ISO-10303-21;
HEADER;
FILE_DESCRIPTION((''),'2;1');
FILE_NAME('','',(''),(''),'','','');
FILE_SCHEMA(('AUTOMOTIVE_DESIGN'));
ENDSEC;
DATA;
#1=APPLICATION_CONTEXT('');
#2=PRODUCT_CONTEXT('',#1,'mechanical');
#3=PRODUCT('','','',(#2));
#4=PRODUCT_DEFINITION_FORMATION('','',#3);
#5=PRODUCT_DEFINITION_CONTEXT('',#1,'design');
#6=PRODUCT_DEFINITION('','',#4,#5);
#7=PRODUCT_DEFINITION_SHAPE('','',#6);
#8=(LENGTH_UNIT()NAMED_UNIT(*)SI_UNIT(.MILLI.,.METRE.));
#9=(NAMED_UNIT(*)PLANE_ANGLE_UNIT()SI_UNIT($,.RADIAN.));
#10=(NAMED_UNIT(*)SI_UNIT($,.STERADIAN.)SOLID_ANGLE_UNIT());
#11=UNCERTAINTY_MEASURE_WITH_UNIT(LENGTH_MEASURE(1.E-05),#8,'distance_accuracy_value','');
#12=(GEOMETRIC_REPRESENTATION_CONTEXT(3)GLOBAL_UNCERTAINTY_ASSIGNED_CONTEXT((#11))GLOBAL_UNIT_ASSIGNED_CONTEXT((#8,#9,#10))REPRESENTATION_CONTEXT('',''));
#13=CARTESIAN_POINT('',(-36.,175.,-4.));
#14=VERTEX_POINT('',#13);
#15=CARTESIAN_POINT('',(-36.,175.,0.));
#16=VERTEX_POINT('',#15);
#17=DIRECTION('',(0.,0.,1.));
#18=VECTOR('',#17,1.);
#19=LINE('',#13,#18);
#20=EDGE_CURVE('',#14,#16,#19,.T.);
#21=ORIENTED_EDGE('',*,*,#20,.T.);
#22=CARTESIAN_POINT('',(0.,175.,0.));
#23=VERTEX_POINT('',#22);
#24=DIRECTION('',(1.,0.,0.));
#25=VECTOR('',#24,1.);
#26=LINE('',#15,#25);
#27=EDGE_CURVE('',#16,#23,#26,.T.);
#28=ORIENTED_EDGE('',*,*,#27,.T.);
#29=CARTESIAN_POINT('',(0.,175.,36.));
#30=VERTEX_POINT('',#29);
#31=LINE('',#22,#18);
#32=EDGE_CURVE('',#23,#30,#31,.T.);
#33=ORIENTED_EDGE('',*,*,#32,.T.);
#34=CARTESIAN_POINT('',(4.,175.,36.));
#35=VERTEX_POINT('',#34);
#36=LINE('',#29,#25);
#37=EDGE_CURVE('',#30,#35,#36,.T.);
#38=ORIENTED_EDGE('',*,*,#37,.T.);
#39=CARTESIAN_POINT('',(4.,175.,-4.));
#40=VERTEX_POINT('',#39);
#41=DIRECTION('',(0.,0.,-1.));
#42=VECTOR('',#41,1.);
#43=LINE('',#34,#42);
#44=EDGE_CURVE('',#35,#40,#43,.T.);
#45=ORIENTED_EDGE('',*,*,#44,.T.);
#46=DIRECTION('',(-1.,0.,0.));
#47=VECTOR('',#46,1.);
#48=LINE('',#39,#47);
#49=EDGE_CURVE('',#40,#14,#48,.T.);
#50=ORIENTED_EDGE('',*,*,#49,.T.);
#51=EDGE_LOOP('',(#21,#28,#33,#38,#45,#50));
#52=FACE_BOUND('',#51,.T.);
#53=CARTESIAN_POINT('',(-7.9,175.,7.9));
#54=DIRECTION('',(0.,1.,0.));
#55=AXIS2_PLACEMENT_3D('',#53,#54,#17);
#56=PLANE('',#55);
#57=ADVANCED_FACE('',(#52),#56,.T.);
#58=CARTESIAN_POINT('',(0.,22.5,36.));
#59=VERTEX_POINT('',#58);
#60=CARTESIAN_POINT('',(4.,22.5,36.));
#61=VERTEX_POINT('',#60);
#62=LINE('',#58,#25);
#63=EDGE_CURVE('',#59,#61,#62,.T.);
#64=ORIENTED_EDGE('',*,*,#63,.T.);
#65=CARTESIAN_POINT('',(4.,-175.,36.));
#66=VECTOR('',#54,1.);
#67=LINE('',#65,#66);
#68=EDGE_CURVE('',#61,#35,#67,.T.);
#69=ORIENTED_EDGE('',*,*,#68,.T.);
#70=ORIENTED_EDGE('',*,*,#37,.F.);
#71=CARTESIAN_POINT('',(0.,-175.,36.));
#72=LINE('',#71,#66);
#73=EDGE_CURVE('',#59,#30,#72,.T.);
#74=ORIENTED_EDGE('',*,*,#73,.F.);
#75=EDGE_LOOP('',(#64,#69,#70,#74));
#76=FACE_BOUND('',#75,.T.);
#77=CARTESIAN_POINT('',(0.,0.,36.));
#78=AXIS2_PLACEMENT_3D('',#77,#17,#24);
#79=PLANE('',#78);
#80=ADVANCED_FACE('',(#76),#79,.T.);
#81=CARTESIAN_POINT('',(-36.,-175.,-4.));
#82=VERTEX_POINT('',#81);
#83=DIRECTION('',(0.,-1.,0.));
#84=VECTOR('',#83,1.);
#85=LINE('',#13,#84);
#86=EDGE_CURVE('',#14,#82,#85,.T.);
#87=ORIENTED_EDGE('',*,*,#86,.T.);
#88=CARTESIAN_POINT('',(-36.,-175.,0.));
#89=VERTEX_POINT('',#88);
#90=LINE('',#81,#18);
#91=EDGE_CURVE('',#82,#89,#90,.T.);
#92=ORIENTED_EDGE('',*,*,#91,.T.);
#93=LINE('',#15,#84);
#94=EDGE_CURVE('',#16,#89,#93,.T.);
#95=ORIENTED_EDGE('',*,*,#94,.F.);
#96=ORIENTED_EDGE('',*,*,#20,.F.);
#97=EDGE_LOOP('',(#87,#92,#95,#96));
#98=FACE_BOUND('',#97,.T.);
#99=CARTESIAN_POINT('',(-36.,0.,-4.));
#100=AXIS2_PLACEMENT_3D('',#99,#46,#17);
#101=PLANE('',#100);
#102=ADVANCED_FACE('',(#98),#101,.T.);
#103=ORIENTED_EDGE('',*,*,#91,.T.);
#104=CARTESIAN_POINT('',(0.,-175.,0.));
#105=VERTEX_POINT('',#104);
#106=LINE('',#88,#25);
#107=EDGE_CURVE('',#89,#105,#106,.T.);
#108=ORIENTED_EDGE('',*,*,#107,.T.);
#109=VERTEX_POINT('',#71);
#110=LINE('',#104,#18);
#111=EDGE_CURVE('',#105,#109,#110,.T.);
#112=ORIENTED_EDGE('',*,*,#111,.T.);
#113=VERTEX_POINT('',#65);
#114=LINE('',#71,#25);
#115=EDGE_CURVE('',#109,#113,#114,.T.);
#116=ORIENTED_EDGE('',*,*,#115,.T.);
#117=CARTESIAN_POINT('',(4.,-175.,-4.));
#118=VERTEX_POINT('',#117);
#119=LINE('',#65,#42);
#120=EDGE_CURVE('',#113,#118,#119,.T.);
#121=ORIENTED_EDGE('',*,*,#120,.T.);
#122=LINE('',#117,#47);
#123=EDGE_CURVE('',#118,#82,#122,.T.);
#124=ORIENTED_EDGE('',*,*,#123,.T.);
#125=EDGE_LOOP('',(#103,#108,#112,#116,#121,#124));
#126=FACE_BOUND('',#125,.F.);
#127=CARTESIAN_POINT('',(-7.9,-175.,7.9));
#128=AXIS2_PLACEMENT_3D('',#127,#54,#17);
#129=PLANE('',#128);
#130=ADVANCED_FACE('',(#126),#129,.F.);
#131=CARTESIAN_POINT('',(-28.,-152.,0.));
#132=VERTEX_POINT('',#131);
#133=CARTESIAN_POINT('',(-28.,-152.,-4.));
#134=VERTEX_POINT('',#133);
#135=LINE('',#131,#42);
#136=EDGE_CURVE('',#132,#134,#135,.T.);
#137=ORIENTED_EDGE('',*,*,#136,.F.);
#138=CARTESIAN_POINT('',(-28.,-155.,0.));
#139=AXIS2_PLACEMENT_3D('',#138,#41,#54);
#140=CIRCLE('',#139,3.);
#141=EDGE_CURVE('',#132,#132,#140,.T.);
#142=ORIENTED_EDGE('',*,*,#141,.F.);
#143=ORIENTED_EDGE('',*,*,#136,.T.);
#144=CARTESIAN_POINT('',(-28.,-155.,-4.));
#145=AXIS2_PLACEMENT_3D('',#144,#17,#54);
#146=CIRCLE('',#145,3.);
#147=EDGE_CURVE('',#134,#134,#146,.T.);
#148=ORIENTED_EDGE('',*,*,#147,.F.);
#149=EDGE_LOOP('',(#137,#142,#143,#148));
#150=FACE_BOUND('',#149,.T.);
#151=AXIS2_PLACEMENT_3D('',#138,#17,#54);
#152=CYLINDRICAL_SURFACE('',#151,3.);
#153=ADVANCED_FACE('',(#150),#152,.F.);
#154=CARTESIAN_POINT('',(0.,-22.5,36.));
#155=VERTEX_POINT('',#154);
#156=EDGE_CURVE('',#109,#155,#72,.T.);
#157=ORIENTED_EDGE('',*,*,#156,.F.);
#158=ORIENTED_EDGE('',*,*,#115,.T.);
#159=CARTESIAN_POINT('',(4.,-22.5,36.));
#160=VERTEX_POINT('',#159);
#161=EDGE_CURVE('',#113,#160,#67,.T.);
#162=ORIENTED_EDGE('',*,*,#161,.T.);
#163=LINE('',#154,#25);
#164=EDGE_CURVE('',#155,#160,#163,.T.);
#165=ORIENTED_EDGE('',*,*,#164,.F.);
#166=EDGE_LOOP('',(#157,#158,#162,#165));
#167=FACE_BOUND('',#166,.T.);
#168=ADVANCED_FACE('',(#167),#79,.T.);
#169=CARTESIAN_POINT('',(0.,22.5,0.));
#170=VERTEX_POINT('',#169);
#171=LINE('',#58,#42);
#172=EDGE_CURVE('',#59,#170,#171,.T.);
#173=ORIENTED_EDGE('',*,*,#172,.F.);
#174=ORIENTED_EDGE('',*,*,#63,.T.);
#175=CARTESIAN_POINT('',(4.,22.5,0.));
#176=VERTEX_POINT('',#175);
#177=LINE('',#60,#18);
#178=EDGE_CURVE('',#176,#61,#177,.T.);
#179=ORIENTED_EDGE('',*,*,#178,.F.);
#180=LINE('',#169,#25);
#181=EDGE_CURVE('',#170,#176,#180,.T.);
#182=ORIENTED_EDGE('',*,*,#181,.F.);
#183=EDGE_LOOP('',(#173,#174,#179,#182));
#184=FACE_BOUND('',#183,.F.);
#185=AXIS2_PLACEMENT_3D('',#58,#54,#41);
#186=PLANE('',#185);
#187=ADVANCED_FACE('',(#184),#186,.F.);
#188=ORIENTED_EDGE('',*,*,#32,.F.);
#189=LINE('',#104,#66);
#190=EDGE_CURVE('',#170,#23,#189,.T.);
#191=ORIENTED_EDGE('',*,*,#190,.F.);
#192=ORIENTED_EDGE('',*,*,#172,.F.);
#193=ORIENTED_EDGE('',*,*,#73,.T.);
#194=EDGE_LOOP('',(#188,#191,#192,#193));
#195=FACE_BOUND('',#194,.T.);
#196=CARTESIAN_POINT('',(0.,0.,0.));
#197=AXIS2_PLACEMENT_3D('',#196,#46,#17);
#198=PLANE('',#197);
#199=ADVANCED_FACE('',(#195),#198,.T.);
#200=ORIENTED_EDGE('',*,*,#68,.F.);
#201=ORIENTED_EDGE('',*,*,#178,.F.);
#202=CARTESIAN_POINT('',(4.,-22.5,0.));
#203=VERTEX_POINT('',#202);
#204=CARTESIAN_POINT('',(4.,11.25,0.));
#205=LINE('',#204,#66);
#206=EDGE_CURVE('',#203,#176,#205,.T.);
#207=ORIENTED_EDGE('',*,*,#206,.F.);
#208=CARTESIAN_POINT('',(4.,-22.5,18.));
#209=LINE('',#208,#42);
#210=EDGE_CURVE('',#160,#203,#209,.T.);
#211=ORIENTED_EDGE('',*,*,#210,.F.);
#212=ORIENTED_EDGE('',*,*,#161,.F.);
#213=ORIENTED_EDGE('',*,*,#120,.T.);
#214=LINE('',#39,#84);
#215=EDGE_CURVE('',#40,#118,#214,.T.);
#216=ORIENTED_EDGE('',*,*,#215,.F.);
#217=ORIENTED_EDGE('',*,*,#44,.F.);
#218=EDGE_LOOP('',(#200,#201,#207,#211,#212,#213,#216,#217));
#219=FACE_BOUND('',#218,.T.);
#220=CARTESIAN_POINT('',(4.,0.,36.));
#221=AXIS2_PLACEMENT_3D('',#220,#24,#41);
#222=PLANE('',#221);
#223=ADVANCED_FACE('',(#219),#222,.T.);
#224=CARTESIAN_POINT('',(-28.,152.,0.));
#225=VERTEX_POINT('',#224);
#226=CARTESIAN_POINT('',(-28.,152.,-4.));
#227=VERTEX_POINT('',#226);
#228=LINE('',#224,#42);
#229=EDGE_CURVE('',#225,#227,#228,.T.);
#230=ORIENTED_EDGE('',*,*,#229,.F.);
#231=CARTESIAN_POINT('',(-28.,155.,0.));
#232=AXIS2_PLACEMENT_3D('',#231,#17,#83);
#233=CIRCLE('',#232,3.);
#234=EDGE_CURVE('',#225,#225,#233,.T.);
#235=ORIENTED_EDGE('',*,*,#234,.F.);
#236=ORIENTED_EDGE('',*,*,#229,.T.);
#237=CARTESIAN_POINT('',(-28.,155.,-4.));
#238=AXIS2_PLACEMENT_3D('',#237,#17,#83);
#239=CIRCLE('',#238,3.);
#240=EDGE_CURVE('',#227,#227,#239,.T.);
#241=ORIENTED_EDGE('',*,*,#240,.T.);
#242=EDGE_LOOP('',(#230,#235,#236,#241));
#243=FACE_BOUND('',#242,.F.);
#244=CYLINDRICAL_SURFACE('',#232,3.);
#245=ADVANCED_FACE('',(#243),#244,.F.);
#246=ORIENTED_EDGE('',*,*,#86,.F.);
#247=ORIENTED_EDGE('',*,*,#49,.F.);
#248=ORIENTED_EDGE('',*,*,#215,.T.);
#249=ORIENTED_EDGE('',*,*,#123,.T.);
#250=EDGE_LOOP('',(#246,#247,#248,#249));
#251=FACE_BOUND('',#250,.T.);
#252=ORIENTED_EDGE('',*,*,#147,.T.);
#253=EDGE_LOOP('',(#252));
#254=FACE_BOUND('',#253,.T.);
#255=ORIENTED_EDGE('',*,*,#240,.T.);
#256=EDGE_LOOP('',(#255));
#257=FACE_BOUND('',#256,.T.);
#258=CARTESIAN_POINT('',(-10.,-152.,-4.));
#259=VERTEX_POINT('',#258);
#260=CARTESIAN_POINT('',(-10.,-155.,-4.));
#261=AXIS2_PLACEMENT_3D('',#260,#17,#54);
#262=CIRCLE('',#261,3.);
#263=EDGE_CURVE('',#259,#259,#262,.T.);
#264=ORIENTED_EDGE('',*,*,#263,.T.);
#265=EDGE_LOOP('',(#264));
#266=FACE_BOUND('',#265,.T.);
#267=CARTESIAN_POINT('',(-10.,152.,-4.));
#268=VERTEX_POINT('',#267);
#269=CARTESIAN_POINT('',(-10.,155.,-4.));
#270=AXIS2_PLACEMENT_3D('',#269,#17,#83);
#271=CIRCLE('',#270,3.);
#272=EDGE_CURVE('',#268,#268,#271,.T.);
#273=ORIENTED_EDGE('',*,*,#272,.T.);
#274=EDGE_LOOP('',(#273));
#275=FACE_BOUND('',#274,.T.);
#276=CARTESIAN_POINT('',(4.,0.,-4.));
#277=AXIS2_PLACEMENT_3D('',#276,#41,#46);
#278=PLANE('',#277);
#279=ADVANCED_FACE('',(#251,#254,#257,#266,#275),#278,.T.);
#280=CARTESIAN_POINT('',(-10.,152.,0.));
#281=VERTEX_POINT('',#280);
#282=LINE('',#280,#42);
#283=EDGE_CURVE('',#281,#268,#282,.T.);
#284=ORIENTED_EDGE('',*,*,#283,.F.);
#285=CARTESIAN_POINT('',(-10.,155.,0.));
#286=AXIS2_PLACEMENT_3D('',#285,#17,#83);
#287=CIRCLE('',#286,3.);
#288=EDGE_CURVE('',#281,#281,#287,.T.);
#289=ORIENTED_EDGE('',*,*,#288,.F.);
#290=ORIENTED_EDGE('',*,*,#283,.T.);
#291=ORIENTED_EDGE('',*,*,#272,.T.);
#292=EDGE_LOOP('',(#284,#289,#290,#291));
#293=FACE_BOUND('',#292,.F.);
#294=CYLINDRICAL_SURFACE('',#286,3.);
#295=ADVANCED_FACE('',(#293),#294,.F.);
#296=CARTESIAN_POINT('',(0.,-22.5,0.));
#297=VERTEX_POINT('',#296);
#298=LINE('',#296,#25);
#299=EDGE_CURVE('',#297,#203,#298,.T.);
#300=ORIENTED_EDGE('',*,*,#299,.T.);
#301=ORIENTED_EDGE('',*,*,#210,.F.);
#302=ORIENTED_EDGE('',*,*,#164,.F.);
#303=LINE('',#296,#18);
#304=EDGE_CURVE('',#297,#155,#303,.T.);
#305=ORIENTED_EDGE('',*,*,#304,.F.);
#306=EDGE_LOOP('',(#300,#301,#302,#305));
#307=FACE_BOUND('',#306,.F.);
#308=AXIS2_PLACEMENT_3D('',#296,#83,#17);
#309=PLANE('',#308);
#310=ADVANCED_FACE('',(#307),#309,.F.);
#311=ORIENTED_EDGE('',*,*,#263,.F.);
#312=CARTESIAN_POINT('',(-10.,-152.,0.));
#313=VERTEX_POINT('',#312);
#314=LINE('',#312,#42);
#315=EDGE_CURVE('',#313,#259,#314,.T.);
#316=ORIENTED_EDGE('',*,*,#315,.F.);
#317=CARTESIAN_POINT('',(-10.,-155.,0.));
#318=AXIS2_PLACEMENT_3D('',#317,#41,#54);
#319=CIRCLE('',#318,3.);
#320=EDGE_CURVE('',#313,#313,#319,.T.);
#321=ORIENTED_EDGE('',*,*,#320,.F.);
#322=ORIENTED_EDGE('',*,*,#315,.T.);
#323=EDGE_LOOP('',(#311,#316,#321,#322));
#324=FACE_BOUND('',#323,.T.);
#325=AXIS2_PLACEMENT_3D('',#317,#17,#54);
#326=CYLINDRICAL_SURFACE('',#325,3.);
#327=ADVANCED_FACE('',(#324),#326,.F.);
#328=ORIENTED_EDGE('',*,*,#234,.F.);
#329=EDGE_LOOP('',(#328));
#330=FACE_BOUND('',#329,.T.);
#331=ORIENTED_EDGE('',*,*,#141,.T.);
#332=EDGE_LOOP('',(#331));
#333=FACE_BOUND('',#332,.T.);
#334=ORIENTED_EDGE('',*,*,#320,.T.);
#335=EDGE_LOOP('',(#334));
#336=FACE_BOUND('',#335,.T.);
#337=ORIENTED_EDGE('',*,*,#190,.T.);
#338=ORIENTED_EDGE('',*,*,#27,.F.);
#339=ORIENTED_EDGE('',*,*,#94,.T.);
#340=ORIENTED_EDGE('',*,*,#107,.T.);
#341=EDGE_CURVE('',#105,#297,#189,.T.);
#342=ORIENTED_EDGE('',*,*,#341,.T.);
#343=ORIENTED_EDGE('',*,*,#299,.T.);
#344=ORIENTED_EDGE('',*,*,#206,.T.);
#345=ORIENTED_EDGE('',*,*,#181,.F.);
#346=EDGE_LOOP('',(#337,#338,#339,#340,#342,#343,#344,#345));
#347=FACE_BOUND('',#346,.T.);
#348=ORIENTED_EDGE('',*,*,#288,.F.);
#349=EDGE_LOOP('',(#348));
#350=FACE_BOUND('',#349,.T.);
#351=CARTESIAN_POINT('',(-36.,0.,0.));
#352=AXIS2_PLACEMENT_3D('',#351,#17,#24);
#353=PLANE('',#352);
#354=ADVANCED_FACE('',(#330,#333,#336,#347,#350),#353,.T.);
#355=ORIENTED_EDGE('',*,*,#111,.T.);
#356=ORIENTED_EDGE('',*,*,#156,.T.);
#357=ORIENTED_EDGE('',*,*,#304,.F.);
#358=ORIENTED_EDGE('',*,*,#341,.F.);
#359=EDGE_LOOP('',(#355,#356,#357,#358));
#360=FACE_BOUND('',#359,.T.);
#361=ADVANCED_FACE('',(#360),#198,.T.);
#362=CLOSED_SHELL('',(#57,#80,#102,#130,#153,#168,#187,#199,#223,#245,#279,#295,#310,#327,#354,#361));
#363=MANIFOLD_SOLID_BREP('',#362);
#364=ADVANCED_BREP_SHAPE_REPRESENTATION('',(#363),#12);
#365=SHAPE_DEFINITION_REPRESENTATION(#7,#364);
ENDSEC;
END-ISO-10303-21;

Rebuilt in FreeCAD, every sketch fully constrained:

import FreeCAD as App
import Part
import Sketcher

V = App.Vector

doc = App.newDocument("Part")
body = doc.addObject("PartDesign::Body", "Body")

sketch1 = body.newObject("Sketcher::SketchObject", "Sketch")
sketch1.AttachmentSupport = (doc.getObject("XZ_Plane"), [""])
sketch1.MapMode = "FlatFace"
sketch1.addGeometry([
    Part.LineSegment(V(0, 0, 0), V(-36, 0, 0)),
    Part.LineSegment(V(-36, 0, 0), V(-36, -4, 0)),
    Part.LineSegment(V(-36, -4, 0), V(4, -4, 0)),
    Part.LineSegment(V(4, -4, 0), V(4, 36, 0)),
    Part.LineSegment(V(4, 36, 0), V(0, 36, 0)),
    Part.LineSegment(V(0, 36, 0), V(0, 0, 0)),
], False)
sketch1.addConstraint([
    Sketcher.Constraint("Coincident", 0, 2, 1, 1),
    Sketcher.Constraint("Coincident", 1, 2, 2, 1),
    Sketcher.Constraint("Coincident", 2, 2, 3, 1),
    Sketcher.Constraint("Coincident", 3, 2, 4, 1),
    Sketcher.Constraint("Coincident", 4, 2, 5, 1),
    Sketcher.Constraint("Coincident", 5, 2, 0, 1),
    Sketcher.Constraint("Horizontal", 0),
    Sketcher.Constraint("Vertical", 1),
    Sketcher.Constraint("Horizontal", 2),
    Sketcher.Constraint("Vertical", 3),
    Sketcher.Constraint("Horizontal", 4),
    Sketcher.Constraint("Vertical", 5),
    Sketcher.Constraint("Coincident", 5, 2, -1, 1),
    Sketcher.Constraint("Equal", 4, 1),
    Sketcher.Constraint("Equal", 2, 3),
    Sketcher.Constraint("DistanceX", 0, 2, 0, 1, 36.0),
    Sketcher.Constraint("DistanceX", 2, 1, 2, 2, 40.0),
])
pad1 = body.newObject("PartDesign::Pad", "Pad")
pad1.Profile = sketch1
pad1.Length = 350
pad1.Midplane = True

sketch2 = body.newObject("Sketcher::SketchObject", "Sketch001")
sketch2.AttachmentSupport = (doc.getObject("XY_Plane"), [""])
sketch2.MapMode = "FlatFace"
sketch2.addGeometry([
    Part.Circle(V(-10, 155, 0), V(0, 0, 1), 3),
    Part.Circle(V(-28, 155, 0), V(0, 0, 1), 3),
], False)
sketch2.addConstraint([
    Sketcher.Constraint("Equal", 0, 1),
    Sketcher.Constraint("Horizontal", 0, 3, 1, 3),
    Sketcher.Constraint("Diameter", 0, 6.0),
    Sketcher.Constraint("DistanceY", -1, 1, 0, 3, 155.0),
    Sketcher.Constraint("DistanceX", 0, 3, -1, 1, 10.0),
    Sketcher.Constraint("DistanceX", 1, 3, -1, 1, 28.0),
])
pocket1 = body.newObject("PartDesign::Pocket", "Pocket")
pocket1.Profile = sketch2
pocket1.Type = "ThroughAll"
doc.recompute()

mirrored = body.newObject("PartDesign::Mirrored", "Mirrored")
mirrored.Originals = [pocket1]
mirrored.MirrorPlane = (doc.getObject("XZ_Plane"), [""])
body.Tip = mirrored

sketch3 = body.newObject("Sketcher::SketchObject", "Sketch002")
sketch3.AttachmentSupport = (doc.getObject("YZ_Plane"), [""])
sketch3.MapMode = "FlatFace"
sketch3.addGeometry([
    Part.LineSegment(V(22, 36, 0), V(22, 0, 0)),
    Part.LineSegment(V(22, 0, 0), V(-22, 0, 0)),
    Part.LineSegment(V(-22, 0, 0), V(-22, 36, 0)),
    Part.LineSegment(V(-22, 36, 0), V(22, 36, 0)),
], False)
sketch3.addConstraint([
    Sketcher.Constraint("Coincident", 0, 2, 1, 1),
    Sketcher.Constraint("Coincident", 1, 2, 2, 1),
    Sketcher.Constraint("Coincident", 2, 2, 3, 1),
    Sketcher.Constraint("Coincident", 3, 2, 0, 1),
    Sketcher.Constraint("Vertical", 0),
    Sketcher.Constraint("Horizontal", 1),
    Sketcher.Constraint("Vertical", 2),
    Sketcher.Constraint("Horizontal", 3),
    Sketcher.Constraint("Symmetric", 0, 2, 1, 2, -1, 1),
    Sketcher.Constraint("DistanceX", -1, 1, 0, 2, 22.5),
    Sketcher.Constraint("DistanceY", 0, 2, 0, 1, 36.0),
])
pocket2 = body.newObject("PartDesign::Pocket", "Pocket001")
pocket2.Profile = sketch3
pocket2.Type = "ThroughAll"
pocket2.Reversed = True

doc.recompute()
